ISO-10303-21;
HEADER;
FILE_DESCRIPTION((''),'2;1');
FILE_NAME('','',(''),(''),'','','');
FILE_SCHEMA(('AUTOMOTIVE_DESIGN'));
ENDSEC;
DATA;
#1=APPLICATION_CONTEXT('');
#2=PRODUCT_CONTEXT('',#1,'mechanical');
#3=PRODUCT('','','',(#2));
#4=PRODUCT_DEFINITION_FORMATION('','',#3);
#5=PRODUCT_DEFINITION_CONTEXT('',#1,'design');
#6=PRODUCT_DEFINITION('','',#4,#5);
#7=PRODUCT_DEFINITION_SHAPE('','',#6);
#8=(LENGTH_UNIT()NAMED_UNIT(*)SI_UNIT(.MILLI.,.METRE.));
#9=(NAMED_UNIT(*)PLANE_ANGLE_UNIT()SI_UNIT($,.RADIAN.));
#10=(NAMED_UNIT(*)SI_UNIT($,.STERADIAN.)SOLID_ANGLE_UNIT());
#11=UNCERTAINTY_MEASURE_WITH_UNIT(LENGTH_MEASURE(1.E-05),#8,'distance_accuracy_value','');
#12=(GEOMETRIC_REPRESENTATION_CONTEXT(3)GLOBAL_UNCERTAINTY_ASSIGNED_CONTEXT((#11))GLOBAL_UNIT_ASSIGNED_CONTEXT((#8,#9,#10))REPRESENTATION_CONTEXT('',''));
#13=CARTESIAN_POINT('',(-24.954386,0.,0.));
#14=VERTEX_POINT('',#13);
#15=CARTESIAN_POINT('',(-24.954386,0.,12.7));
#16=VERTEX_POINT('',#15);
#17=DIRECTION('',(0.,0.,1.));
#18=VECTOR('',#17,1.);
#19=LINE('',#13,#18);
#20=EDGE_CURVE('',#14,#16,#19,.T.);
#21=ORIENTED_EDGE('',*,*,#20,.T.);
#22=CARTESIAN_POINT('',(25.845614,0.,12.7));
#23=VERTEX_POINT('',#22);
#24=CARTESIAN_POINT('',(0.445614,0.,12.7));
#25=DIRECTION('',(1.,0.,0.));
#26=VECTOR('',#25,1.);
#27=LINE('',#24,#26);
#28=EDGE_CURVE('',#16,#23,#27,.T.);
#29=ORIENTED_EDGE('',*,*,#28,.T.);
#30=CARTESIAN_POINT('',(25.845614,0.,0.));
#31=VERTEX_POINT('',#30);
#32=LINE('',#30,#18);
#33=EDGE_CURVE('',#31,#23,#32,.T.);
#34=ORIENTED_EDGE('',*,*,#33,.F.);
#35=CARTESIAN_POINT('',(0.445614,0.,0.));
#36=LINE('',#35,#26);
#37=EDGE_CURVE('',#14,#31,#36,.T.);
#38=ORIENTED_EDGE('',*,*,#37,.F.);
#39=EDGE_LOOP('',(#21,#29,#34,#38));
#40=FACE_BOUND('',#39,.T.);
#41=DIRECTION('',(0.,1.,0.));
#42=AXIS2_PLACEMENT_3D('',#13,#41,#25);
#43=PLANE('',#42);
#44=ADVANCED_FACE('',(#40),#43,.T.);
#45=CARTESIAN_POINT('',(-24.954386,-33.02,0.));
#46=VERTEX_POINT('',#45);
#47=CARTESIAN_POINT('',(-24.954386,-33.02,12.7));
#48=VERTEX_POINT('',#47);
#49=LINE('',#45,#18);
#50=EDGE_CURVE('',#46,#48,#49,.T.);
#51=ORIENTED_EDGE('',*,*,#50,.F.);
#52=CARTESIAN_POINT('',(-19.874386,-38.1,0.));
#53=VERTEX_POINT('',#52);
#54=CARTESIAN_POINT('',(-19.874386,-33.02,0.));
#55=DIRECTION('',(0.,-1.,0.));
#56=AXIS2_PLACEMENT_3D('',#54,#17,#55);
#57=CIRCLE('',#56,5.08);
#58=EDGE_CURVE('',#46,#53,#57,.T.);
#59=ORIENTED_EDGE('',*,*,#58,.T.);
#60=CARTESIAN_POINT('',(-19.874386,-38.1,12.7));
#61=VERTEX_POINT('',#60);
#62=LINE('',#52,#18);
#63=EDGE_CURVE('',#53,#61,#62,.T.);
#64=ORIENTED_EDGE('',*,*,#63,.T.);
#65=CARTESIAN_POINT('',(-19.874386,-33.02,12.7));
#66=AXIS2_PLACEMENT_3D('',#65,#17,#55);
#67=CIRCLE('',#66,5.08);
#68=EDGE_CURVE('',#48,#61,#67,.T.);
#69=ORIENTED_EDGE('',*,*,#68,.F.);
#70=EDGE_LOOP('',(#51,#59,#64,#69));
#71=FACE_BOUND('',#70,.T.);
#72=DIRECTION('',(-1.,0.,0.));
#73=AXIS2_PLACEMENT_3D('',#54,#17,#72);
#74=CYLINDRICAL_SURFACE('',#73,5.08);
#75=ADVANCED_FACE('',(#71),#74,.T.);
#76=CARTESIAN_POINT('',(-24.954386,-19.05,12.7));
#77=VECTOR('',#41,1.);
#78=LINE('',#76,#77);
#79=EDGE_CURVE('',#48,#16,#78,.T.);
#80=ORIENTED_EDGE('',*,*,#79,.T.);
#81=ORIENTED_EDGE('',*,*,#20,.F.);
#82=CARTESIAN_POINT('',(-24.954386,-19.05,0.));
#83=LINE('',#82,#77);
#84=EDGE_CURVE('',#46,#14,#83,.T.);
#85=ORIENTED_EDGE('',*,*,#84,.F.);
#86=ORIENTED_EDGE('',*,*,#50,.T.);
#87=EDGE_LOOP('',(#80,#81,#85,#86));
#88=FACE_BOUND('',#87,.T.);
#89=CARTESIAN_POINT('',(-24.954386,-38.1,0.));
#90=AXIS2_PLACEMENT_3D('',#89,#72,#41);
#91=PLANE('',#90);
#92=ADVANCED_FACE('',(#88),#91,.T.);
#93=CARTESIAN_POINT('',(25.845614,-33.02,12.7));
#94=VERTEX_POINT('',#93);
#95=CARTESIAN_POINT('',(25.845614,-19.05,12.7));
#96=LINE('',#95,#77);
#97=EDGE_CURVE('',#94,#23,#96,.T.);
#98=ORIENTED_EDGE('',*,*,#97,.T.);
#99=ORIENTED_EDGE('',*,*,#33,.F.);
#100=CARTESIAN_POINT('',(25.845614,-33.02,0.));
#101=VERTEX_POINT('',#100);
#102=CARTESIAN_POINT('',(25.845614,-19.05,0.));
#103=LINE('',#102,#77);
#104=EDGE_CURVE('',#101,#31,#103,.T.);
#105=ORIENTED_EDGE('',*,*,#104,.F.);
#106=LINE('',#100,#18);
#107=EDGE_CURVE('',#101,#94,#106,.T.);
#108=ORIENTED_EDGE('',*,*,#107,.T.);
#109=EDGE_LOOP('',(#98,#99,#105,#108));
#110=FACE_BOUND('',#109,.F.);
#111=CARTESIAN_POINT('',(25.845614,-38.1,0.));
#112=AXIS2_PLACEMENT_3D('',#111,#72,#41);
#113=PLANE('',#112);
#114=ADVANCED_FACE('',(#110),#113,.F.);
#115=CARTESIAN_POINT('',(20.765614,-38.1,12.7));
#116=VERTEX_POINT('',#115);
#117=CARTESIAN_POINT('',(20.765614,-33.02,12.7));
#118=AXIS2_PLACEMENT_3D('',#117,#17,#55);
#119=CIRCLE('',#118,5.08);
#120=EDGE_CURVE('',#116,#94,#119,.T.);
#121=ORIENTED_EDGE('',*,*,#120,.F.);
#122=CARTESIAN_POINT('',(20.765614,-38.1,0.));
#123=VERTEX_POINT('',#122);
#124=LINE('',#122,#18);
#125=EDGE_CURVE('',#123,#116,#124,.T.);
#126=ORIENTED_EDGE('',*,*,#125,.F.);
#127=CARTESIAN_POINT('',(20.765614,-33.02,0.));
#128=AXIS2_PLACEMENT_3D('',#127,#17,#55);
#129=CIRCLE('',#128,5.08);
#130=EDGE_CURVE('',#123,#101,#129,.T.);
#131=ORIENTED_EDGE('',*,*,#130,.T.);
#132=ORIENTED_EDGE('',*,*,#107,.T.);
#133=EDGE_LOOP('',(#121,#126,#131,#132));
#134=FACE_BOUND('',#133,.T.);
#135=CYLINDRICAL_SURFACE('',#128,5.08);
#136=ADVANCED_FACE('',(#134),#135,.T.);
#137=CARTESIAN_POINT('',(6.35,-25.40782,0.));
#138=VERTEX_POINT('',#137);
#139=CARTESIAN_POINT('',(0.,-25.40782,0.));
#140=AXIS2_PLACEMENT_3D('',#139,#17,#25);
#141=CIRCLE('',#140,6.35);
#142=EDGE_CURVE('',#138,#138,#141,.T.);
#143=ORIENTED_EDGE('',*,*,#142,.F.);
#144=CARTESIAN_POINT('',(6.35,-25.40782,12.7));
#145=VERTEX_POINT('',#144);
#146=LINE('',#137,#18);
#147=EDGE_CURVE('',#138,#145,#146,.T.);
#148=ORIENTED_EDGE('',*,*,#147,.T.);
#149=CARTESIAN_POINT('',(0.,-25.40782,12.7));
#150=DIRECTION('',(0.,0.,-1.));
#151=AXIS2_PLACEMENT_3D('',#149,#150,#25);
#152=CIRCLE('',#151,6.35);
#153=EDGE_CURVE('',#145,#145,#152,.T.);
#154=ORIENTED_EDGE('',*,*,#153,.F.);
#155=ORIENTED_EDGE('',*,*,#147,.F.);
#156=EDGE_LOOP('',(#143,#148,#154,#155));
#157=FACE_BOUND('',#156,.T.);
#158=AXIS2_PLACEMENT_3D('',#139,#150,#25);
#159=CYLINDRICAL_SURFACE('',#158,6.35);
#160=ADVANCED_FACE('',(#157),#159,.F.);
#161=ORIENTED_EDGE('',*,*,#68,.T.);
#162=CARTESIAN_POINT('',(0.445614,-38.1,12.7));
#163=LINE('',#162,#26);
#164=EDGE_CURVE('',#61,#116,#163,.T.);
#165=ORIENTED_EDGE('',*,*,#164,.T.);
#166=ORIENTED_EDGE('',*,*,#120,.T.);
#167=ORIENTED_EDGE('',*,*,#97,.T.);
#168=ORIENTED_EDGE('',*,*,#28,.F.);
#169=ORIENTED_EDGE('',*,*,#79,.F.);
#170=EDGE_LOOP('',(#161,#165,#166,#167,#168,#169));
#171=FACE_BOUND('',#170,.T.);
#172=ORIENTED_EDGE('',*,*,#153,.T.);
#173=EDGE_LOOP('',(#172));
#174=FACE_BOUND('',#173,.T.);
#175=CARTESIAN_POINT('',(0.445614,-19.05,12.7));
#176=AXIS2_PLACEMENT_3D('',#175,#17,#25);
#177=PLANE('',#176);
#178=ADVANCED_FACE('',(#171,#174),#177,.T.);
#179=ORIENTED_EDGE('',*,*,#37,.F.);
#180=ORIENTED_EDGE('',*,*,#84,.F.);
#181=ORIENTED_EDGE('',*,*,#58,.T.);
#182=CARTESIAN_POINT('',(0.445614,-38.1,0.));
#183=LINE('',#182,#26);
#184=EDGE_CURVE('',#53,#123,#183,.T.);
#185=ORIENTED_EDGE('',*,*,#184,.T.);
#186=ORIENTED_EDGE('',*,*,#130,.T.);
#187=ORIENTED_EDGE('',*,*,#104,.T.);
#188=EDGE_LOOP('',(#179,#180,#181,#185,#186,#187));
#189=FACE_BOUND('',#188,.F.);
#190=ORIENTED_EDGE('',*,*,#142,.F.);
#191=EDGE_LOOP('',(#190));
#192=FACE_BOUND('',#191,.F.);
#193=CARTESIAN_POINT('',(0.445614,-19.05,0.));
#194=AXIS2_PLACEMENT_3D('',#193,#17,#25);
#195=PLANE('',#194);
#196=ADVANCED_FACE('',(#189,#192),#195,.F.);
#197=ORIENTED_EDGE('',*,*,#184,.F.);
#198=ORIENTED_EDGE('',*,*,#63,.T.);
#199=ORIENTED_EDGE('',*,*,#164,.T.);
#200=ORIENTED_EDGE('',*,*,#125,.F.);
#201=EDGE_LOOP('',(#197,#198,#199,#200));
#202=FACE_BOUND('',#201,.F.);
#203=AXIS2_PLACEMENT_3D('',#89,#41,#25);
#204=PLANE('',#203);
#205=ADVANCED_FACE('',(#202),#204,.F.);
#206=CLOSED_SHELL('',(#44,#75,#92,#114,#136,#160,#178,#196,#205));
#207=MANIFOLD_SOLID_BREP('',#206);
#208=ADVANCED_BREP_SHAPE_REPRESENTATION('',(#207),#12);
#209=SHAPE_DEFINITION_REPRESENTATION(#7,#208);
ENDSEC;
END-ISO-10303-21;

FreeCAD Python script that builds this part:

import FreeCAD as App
import Part
import Sketcher
Q = App.Units.Quantity


def edges_at(feature, points):
    """Names of the edges that pass closest to the given points."""
    edges = feature.Shape.Edges
    near = lambda p: min(range(len(edges)), key=lambda i: edges[i].distToShape(Part.Vertex(*p))[0])
    return sorted({f"Edge{near(p) + 1}" for p in points})


def add_polygon(sketch, points):
    """Adds a closed chain of lines whose ends are joined by coincident constraints."""
    first, n = sketch.GeometryCount, len(points)
    for a, b in zip(points, points[1:] + points[:1]):
        sketch.addGeometry(Part.LineSegment(App.Vector(*a, 0), App.Vector(*b, 0)), False)
    for i in range(n):
        sketch.addConstraint(Sketcher.Constraint("Coincident", first + i, 2, first + (i + 1) % n, 1))

doc = App.newDocument("Part")
body = doc.addObject("PartDesign::Body", "Body")

sketch1 = doc.addObject("Sketcher::SketchObject", "Sketch")
body.addObject(sketch1)
sketch1.AttachmentSupport = (doc.XY_Plane, [""])
sketch1.MapMode = "FlatFace"
add_polygon(sketch1, [(-25, 0), (-25, -38), (26, -38), (26, 0)])
sketch1.addConstraint([
    Sketcher.Constraint("Vertical", 0),
    Sketcher.Constraint("Horizontal", 1),
    Sketcher.Constraint("Vertical", 2),
    Sketcher.Constraint("Horizontal", 3),
    Sketcher.Constraint("PointOnObject", 2, 2, -1),
    Sketcher.Constraint("DistanceX", 1, 1, 1, 2, Q("2 in")),
    Sketcher.Constraint("DistanceY", 0, 2, 0, 1, Q("1.5 in")),
    Sketcher.Constraint("DistanceX", 0, 2, -1, 1, 24.954386),
])
pad1 = doc.addObject("PartDesign::Pad", "Pad")
body.addObject(pad1)
pad1.Profile = sketch1
pad1.Length = Q("0.5 in")
doc.recompute()

fillet = doc.addObject("PartDesign::Fillet", "Fillet")
body.addObject(fillet)
fillet.Base = (pad1, edges_at(pad1, [(-24.954, -38.1, 6.35), (25.846, -38.1, 6.35)]))
fillet.Radius = Q("0.2 in")

sketch2 = doc.addObject("Sketcher::SketchObject", "Sketch001")
body.addObject(sketch2)
sketch2.AttachmentSupport = (doc.XY_Plane, [""])
sketch2.MapMode = "FlatFace"
sketch2.addGeometry(Part.Circle(App.Vector(0, -25, 0), App.Vector(0, 0, 1), 6), False)
sketch2.addConstraint([
    Sketcher.Constraint("PointOnObject", 0, 3, -2),
    Sketcher.Constraint("Diameter", 0, Q("0.5 in")),
    Sketcher.Constraint("DistanceY", 0, 3, -1, 1, 25.40782),
])
pocket1 = doc.addObject("PartDesign::Pocket", "Pocket")
body.addObject(pocket1)
pocket1.Profile = sketch2
pocket1.Type = "ThroughAll"
pocket1.Reversed = True

doc.recompute()
